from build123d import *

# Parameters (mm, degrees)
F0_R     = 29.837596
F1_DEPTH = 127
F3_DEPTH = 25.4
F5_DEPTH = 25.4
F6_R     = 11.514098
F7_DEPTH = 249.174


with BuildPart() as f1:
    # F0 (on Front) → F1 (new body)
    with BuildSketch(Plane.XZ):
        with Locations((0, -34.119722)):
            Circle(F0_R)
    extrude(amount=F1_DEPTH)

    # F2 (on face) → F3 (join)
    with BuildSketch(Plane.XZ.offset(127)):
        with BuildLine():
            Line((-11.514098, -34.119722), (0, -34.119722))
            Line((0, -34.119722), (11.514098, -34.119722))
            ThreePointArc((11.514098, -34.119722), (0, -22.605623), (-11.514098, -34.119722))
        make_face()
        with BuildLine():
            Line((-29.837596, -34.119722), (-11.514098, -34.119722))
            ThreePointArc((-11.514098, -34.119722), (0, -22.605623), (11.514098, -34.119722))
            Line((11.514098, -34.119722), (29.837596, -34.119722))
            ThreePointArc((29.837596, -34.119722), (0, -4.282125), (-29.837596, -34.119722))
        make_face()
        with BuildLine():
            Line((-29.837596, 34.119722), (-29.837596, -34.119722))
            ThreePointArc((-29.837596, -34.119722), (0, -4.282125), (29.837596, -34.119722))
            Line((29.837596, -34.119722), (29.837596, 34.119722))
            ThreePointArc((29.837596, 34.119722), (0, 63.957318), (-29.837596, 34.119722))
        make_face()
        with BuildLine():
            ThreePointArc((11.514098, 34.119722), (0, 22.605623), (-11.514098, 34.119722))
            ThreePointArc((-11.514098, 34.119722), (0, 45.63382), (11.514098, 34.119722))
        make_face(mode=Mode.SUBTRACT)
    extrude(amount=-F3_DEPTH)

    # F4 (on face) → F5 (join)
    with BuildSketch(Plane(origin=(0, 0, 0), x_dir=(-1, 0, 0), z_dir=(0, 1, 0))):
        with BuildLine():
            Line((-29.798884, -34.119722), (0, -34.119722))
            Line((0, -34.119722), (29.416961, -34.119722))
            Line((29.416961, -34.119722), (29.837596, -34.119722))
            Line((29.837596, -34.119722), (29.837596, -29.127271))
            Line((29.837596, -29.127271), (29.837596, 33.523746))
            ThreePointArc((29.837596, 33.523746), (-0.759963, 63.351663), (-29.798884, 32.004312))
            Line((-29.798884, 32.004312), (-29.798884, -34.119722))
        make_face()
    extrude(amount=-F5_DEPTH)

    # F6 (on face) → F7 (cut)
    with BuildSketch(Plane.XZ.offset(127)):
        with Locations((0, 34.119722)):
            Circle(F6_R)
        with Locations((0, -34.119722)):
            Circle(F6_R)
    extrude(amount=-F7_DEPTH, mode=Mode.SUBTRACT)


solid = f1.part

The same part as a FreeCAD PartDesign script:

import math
import FreeCAD as App
import Part
import Sketcher

V = App.Vector
Q = App.Units.Quantity

doc = App.newDocument("Part")
params = doc.addObject("Spreadsheet::Sheet", "Params")
for row, (alias, value) in enumerate([
    ("pad1_length", "5 in"),
    ("pad2_length", "1 in"),
    ("pad3_length", "1 in"),
    ("pocket1_length", "9.81 in"),
], start=1):
    params.set(f"A{row}", alias)
    params.set(f"B{row}", "=" + value)
    params.setAlias(f"B{row}", alias)

body = doc.addObject("PartDesign::Body", "Body")

# Sketch on XZ plane
sketch1 = body.newObject("Sketcher::SketchObject", "Sketch")
sketch1.AttachmentSupport = (doc.getObject("XZ_Plane"), [""])
sketch1.MapMode = "FlatFace"
sketch1.addGeometry(Part.Circle(V(0, -34.119722, 0), V(0, 0, 1), 29.837596), False)
sketch1.addConstraint([
    Sketcher.Constraint("PointOnObject", 0, 3, -2),
    Sketcher.Constraint("Diameter", 0, Q("59.675192 mm")),
    Sketcher.Constraint("DistanceY", 0, 3, -1, 1, Q("34.119722 mm")),
])
pad1 = body.newObject("PartDesign::Pad", "Pad")
pad1.Profile = sketch1
pad1.setExpression("Length", "Params.pad1_length")

# Sketch on XZ plane
sketch2 = body.newObject("Sketcher::SketchObject", "Sketch001")
sketch2.AttachmentSupport = (doc.getObject("XZ_Plane"), [""])
sketch2.MapMode = "FlatFace"
sketch2.AttachmentOffset = App.Placement(V(0, 0, 5 * 25.4), App.Rotation())
sketch2.addGeometry([
    Part.LineSegment(V(-29.837596, -34.119722, 0), V(29.837596, -34.119722, 0)),  # 0
    Part.LineSegment(V(29.837596, -34.119722, 0), V(29.837596, 34.119722, 0)),  # 1
    Part.ArcOfCircle(Part.Circle(V(0, 34.119722, 0), V(0, 0, 1), 29.837596), math.radians(0), math.radians(180)),  # 2
    Part.LineSegment(V(-29.837596, 34.119722, 0), V(-29.837596, -34.119722, 0)),  # 3
    Part.ArcOfCircle(Part.Circle(V(0, 34.119722, 0), V(0, 0, 1), 11.514098), math.radians(0), math.radians(180)),  # 4
    Part.ArcOfCircle(Part.Circle(V(0, 34.119721, 0), V(0, 0, 1), 11.514098), math.radians(179.999995), math.radians(360.000005)),  # 5
], False)
sketch2.addConstraint([
    Sketcher.Constraint("Coincident", 0, 2, 1, 1),
    Sketcher.Constraint("Tangent", 1, 2, 2, 1),
    Sketcher.Constraint("Tangent", 2, 2, 3, 1),
    Sketcher.Constraint("Coincident", 3, 2, 0, 1),
    Sketcher.Constraint("Tangent", 4, 1, 5, 2),
    Sketcher.Constraint("Coincident", 5, 1, 4, 2),
    Sketcher.Constraint("Horizontal", 0),
    Sketcher.Constraint("Vertical", 1),
    Sketcher.Constraint("Vertical", 3),
    Sketcher.Constraint("Coincident", 4, 3, 2, 3),
    Sketcher.Constraint("Symmetric", 0, 2, 2, 2, -1, 1),
    Sketcher.Constraint("Horizontal", 2, 2, 4, 1),
    Sketcher.Constraint("Horizontal", 4, 1, 5, 1),
    Sketcher.Constraint("Radius", 4, Q("11.514098 mm")),
    Sketcher.Constraint("Radius", 2, Q("29.837596 mm")),
    Sketcher.Constraint("DistanceY", 1, 1, 1, 2, Q("68.239444 mm")),
])
pad2 = body.newObject("PartDesign::Pad", "Pad001")
pad2.Profile = sketch2
pad2.setExpression("Length", "Params.pad2_length")
pad2.Reversed = True

# Sketch on XZ plane
sketch3 = body.newObject("Sketcher::SketchObject", "Sketch002")
sketch3.AttachmentSupport = (doc.getObject("XZ_Plane"), [""])
sketch3.MapMode = "FlatFace"
sketch3.addGeometry([
    Part.LineSegment(V(29.798884, -34.119722, 0), V(-29.837596, -34.119722, 0)),
    Part.LineSegment(V(-29.837596, -34.119722, 0), V(-29.837596, 33.523746, 0)),
    Part.ArcOfCircle(Part.Circle(V(0, 33.523746, 0), V(0, 0, 1), 29.837596), math.radians(-2.918963), math.radians(180.000001)),
    Part.LineSegment(V(29.798884, 32.004312, 0), V(29.798884, -34.119722, 0)),
], False)
sketch3.addConstraint([
    Sketcher.Constraint("Coincident", 0, 2, 1, 1),
    Sketcher.Constraint("Tangent", 1, 2, 2, 2),
    Sketcher.Constraint("Coincident", 2, 1, 3, 1),
    Sketcher.Constraint("Coincident", 3, 2, 0, 1),
    Sketcher.Constraint("Horizontal", 0),
    Sketcher.Constraint("Vertical", 1),
    Sketcher.Constraint("Vertical", 3),
    Sketcher.Constraint("PointOnObject", 2, 3, -2),
    Sketcher.Constraint("Radius", 2, Q("29.837596 mm")),
    Sketcher.Constraint("DistanceX", 0, 2, 0, 1, Q("59.63648 mm")),
    Sketcher.Constraint("DistanceY", 1, 1, 1, 2, Q("67.643468 mm")),
    Sketcher.Constraint("DistanceY", -1, 1, 2, 1, Q("32.004312 mm")),
])
pad3 = body.newObject("PartDesign::Pad", "Pad002")
pad3.Profile = sketch3
pad3.setExpression("Length", "Params.pad3_length")

# Sketch on XZ plane
sketch4 = body.newObject("Sketcher::SketchObject", "Sketch003")
sketch4.AttachmentSupport = (doc.getObject("XZ_Plane"), [""])
sketch4.MapMode = "FlatFace"
sketch4.AttachmentOffset = App.Placement(V(0, 0, 5 * 25.4), App.Rotation())
sketch4.addGeometry([
    Part.Circle(V(0, 34.119722, 0), V(0, 0, 1), 11.514098),
    Part.Circle(V(0, -34.119722, 0), V(0, 0, 1), 11.514098),
], False)
sketch4.addConstraint([
    Sketcher.Constraint("Equal", 0, 1),
    Sketcher.Constraint("Symmetric", 0, 3, 1, 3, -1, 1),
    Sketcher.Constraint("PointOnObject", 0, 3, -2),
    Sketcher.Constraint("Diameter", 0, Q("23.028196 mm")),
    Sketcher.Constraint("DistanceY", -1, 1, 0, 3, Q("34.119722 mm")),
])
pocket1 = body.newObject("PartDesign::Pocket", "Pocket")
pocket1.Profile = sketch4
pocket1.setExpression("Length", "Params.pocket1_length")

doc.recompute()
